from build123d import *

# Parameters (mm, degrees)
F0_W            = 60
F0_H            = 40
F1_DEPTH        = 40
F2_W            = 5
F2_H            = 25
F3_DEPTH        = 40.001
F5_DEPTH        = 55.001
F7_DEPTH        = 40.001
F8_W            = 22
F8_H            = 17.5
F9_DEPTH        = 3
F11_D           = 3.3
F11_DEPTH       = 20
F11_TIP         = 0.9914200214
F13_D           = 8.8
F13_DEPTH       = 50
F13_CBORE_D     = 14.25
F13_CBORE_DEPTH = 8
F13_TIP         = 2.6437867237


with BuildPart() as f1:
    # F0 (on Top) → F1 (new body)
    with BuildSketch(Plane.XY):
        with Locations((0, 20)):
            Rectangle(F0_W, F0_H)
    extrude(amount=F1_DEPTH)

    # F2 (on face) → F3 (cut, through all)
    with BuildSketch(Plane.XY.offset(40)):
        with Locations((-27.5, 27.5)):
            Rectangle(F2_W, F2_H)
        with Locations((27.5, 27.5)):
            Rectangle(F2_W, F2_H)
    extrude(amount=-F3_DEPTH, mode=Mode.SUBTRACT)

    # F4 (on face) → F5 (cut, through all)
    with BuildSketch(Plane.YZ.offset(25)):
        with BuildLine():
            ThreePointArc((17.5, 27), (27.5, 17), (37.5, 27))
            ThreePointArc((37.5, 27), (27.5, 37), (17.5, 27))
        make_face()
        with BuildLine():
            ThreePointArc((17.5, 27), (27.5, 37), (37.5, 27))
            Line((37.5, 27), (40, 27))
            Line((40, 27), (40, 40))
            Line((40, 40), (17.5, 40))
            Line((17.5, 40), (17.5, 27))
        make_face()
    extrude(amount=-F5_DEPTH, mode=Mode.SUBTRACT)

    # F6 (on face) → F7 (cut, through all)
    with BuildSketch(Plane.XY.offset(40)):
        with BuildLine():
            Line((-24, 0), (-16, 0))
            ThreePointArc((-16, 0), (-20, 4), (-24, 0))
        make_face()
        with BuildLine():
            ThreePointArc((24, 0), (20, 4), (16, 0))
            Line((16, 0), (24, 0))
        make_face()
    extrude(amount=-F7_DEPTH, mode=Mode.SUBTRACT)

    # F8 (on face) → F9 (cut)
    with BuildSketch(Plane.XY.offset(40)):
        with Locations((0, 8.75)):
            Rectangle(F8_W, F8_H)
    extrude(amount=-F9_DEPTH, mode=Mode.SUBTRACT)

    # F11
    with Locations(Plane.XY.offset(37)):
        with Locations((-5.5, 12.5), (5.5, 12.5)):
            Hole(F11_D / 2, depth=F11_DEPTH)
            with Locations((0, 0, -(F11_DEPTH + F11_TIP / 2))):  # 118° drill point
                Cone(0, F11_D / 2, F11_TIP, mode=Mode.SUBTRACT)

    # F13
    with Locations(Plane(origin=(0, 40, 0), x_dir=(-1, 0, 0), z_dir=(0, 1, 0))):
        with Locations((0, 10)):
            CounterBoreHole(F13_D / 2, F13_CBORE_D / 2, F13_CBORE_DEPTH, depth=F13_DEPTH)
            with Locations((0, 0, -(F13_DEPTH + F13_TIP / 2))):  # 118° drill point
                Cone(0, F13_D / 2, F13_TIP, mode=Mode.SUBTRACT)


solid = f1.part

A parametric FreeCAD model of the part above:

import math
import FreeCAD as App
import Part
import Sketcher
from FreeCAD import Vector
Q = App.Units.Quantity

doc = App.newDocument("Part")
params = doc.addObject("Spreadsheet::Sheet", "Params")
for row, (alias, value) in enumerate([
    ("sketch1_width", "60 mm"),
    ("sketch1_height", "40 mm"),
    ("pad1_length", "40 mm"),
    ("sketch2_width", "5 mm"),
    ("sketch2_height", "25 mm"),
    ("sketch3_radius", "10 mm"),
    ("sketch3_height", "13 mm"),
    ("sketch3_width", "2.5 mm"),
    ("sketch4_radius", "4 mm"),
    ("sketch5_width", "22 mm"),
    ("sketch5_height", "17.5 mm"),
    ("pocket4_length", "3 mm"),
    ("sketch6_diameter", "3.3 mm"),
    ("hole_diameter", "3.3 mm"),
    ("hole_depth", "20 mm"),
    ("sketch7_diameter", "8.8 mm"),
    ("hole2_diameter", "8.8 mm"),
    ("hole2_depth", "50 mm"),
    ("hole2_cbore_diameter", "14.25 mm"),
    ("hole2_cbore_depth", "8 mm"),
], start=1):
    params.set(f"A{row}", alias)
    params.set(f"B{row}", "=" + value)
    params.setAlias(f"B{row}", alias)

body = doc.addObject("PartDesign::Body", "Body")

sketch1 = body.newObject("Sketcher::SketchObject", "Sketch")
sketch1.AttachmentSupport = (doc.getObject("XY_Plane"), [""])
sketch1.MapMode = "FlatFace"
sketch1.addGeometry([
    Part.LineSegment(Vector(-30, 40, 0), Vector(-30, 0, 0)),
    Part.LineSegment(Vector(-30, 0, 0), Vector(30, 0, 0)),
    Part.LineSegment(Vector(30, 0, 0), Vector(30, 40, 0)),
    Part.LineSegment(Vector(30, 40, 0), Vector(-30, 40, 0)),
], False)
sketch1.addConstraint([
    Sketcher.Constraint("Coincident", 0, 2, 1, 1),
    Sketcher.Constraint("Coincident", 1, 2, 2, 1),
    Sketcher.Constraint("Coincident", 2, 2, 3, 1),
    Sketcher.Constraint("Coincident", 3, 2, 0, 1),
    Sketcher.Constraint("Vertical", 0),
    Sketcher.Constraint("Horizontal", 1),
    Sketcher.Constraint("Vertical", 2),
    Sketcher.Constraint("Horizontal", 3),
    Sketcher.Constraint("Symmetric", 0, 2, 1, 2, -1, 1),
    Sketcher.Constraint("DistanceX", 1, 1, 1, 2, Q("60 mm")),
    Sketcher.Constraint("DistanceY", 0, 2, 0, 1, Q("40 mm")),
])
sketch1.setExpression("Constraints[9]", "Params.sketch1_width")
sketch1.setExpression("Constraints[10]", "Params.sketch1_height")
pad1 = body.newObject("PartDesign::Pad", "Pad")
pad1.Profile = sketch1
pad1.setExpression("Length", "Params.pad1_length")

sketch2 = body.newObject("Sketcher::SketchObject", "Sketch001")
sketch2.AttachmentSupport = (doc.getObject("XY_Plane"), [""])
sketch2.MapMode = "FlatFace"
sketch2.AttachmentOffset = App.Placement(Vector(0, 0, 40), App.Rotation())
sketch2.addGeometry([
    Part.LineSegment(Vector(-30, 40, 0), Vector(-30, 15, 0)),
    Part.LineSegment(Vector(-30, 15, 0), Vector(-25, 15, 0)),
    Part.LineSegment(Vector(-25, 15, 0), Vector(-25, 40, 0)),
    Part.LineSegment(Vector(-25, 40, 0), Vector(-30, 40, 0)),
    Part.LineSegment(Vector(25, 40, 0), Vector(25, 15, 0)),
    Part.LineSegment(Vector(25, 15, 0), Vector(30, 15, 0)),
    Part.LineSegment(Vector(30, 15, 0), Vector(30, 40, 0)),
    Part.LineSegment(Vector(30, 40, 0), Vector(25, 40, 0)),
], False)
sketch2.addConstraint([
    Sketcher.Constraint("Coincident", 0, 2, 1, 1),
    Sketcher.Constraint("Coincident", 1, 2, 2, 1),
    Sketcher.Constraint("Coincident", 2, 2, 3, 1),
    Sketcher.Constraint("Coincident", 3, 2, 0, 1),
    Sketcher.Constraint("Coincident", 4, 2, 5, 1),
    Sketcher.Constraint("Coincident", 5, 2, 6, 1),
    Sketcher.Constraint("Coincident", 6, 2, 7, 1),
    Sketcher.Constraint("Coincident", 7, 2, 4, 1),
    Sketcher.Constraint("Vertical", 0),
    Sketcher.Constraint("Horizontal", 1),
    Sketcher.Constraint("Vertical", 2),
    Sketcher.Constraint("Horizontal", 3),
    Sketcher.Constraint("Vertical", 4),
    Sketcher.Constraint("Horizontal", 5),
    Sketcher.Constraint("Vertical", 6),
    Sketcher.Constraint("Horizontal", 7),
    Sketcher.Constraint("Symmetric", 1, 2, 4, 2, -2),
    Sketcher.Constraint("Symmetric", 3, 2, 6, 2, -2),
    Sketcher.Constraint("DistanceX", 1, 1, 1, 2, Q("5 mm")),
    Sketcher.Constraint("DistanceY", 0, 2, 0, 1, Q("25 mm")),
    Sketcher.Constraint("DistanceX", 0, 2, -1, 1, Q("30 mm")),
    Sketcher.Constraint("DistanceY", -1, 1, 0, 2, Q("15 mm")),
])
sketch2.setExpression("Constraints[18]", "Params.sketch2_width")
sketch2.setExpression("Constraints[19]", "Params.sketch2_height")
pocket1 = body.newObject("PartDesign::Pocket", "Pocket")
pocket1.Profile = sketch2
pocket1.Type = "ThroughAll"

sketch3 = body.newObject("Sketcher::SketchObject", "Sketch002")
sketch3.AttachmentSupport = (doc.getObject("YZ_Plane"), [""])
sketch3.MapMode = "FlatFace"
sketch3.AttachmentOffset = App.Placement(Vector(0, 0, 25), App.Rotation())
sketch3.addGeometry([
    Part.ArcOfCircle(Part.Circle(Vector(27.5, 27, 0), Vector(0, 0, 1), 10), math.radians(180), math.radians(360)),
    Part.LineSegment(Vector(37.5, 27, 0), Vector(40, 27, 0)),
    Part.LineSegment(Vector(40, 27, 0), Vector(40, 40, 0)),
    Part.LineSegment(Vector(40, 40, 0), Vector(17.5, 40, 0)),
    Part.LineSegment(Vector(17.5, 40, 0), Vector(17.5, 27, 0)),
], False)
sketch3.addConstraint([
    Sketcher.Constraint("Coincident", 0, 2, 1, 1),
    Sketcher.Constraint("Coincident", 1, 2, 2, 1),
    Sketcher.Constraint("Coincident", 2, 2, 3, 1),
    Sketcher.Constraint("Coincident", 3, 2, 4, 1),
    Sketcher.Constraint("Tangent", 4, 2, 0, 1),
    Sketcher.Constraint("Horizontal", 1),
    Sketcher.Constraint("Vertical", 2),
    Sketcher.Constraint("Horizontal", 3),
    Sketcher.Constraint("Vertical", 4),
    Sketcher.Constraint("Horizontal", 1, 2, 4, 2),
    Sketcher.Constraint("Radius", 0, Q("10 mm")),
    Sketcher.Constraint("DistanceY", 2, 1, 2, 2, Q("13 mm")),
    Sketcher.Constraint("DistanceX", 1, 1, 1, 2, Q("2.5 mm")),
    Sketcher.Constraint("DistanceY", -1, 1, 0, 3, Q("27 mm")),
    Sketcher.Constraint("DistanceX", -1, 1, 1, 2, Q("40 mm")),
])
sketch3.setExpression("Constraints[10]", "Params.sketch3_radius")
sketch3.setExpression("Constraints[11]", "Params.sketch3_height")
sketch3.setExpression("Constraints[12]", "Params.sketch3_width")
pocket2 = body.newObject("PartDesign::Pocket", "Pocket001")
pocket2.Profile = sketch3
pocket2.Type = "ThroughAll"

sketch4 = body.newObject("Sketcher::SketchObject", "Sketch003")
sketch4.AttachmentSupport = (doc.getObject("XY_Plane"), [""])
sketch4.MapMode = "FlatFace"
sketch4.AttachmentOffset = App.Placement(Vector(0, 0, 40), App.Rotation())
sketch4.addGeometry([
    Part.LineSegment(Vector(-24, 0, 0), Vector(-16, 0, 0)),
    Part.ArcOfCircle(Part.Circle(Vector(-20, 0, 0), Vector(0, 0, 1), 4), math.radians(0), math.radians(180)),
    Part.ArcOfCircle(Part.Circle(Vector(20, 0, 0), Vector(0, 0, 1), 4), math.radians(0), math.radians(180)),
    Part.LineSegment(Vector(16, 0, 0), Vector(24, 0, 0)),
], False)
sketch4.addConstraint([
    Sketcher.Constraint("Coincident", 0, 1, 1, 2),
    Sketcher.Constraint("Coincident", 1, 1, 0, 2),
    Sketcher.Constraint("Coincident", 2, 1, 3, 2),
    Sketcher.Constraint("Coincident", 3, 1, 2, 2),
    Sketcher.Constraint("Horizontal", 0),
    Sketcher.Constraint("Horizontal", 3),
    Sketcher.Constraint("Equal", 1, 2),
    Sketcher.Constraint("Symmetric", 1, 3, 2, 3, -1, 1),
    Sketcher.Constraint("PointOnObject", 1, 3, -1),
    Sketcher.Constraint("PointOnObject", 0, 1, -1),
    Sketcher.Constraint("PointOnObject", 2, 1, -1),
    Sketcher.Constraint("Radius", 1, Q("4 mm")),
    Sketcher.Constraint("DistanceX", 1, 3, -1, 1, Q("20 mm")),
])
sketch4.setExpression("Constraints[11]", "Params.sketch4_radius")
pocket3 = body.newObject("PartDesign::Pocket", "Pocket002")
pocket3.Profile = sketch4
pocket3.Type = "ThroughAll"

sketch5 = body.newObject("Sketcher::SketchObject", "Sketch004")
sketch5.AttachmentSupport = (doc.getObject("XY_Plane"), [""])
sketch5.MapMode = "FlatFace"
sketch5.AttachmentOffset = App.Placement(Vector(0, 0, 40), App.Rotation())
sketch5.addGeometry([
    Part.LineSegment(Vector(-11, 18, 0), Vector(-11, 0, 0)),
    Part.LineSegment(Vector(-11, 0, 0), Vector(11, 0, 0)),
    Part.LineSegment(Vector(11, 0, 0), Vector(11, 18, 0)),
    Part.LineSegment(Vector(11, 18, 0), Vector(-11, 18, 0)),
], False)
sketch5.addConstraint([
    Sketcher.Constraint("Coincident", 0, 2, 1, 1),
    Sketcher.Constraint("Coincident", 1, 2, 2, 1),
    Sketcher.Constraint("Coincident", 2, 2, 3, 1),
    Sketcher.Constraint("Coincident", 3, 2, 0, 1),
    Sketcher.Constraint("Vertical", 0),
    Sketcher.Constraint("Horizontal", 1),
    Sketcher.Constraint("Vertical", 2),
    Sketcher.Constraint("Horizontal", 3),
    Sketcher.Constraint("Symmetric", 0, 2, 1, 2, -1, 1),
    Sketcher.Constraint("DistanceX", 1, 1, 1, 2, Q("22 mm")),
    Sketcher.Constraint("DistanceY", 0, 2, 0, 1, Q("17.5 mm")),
])
sketch5.setExpression("Constraints[9]", "Params.sketch5_width")
sketch5.setExpression("Constraints[10]", "Params.sketch5_height")
pocket4 = body.newObject("PartDesign::Pocket", "Pocket003")
pocket4.Profile = sketch5
pocket4.setExpression("Length", "Params.pocket4_length")

sketch6 = body.newObject("Sketcher::SketchObject", "Sketch005")
sketch6.AttachmentSupport = (doc.getObject("XY_Plane"), [""])
sketch6.MapMode = "FlatFace"
sketch6.AttachmentOffset = App.Placement(Vector(0, 0, 37), App.Rotation())
sketch6.addGeometry([
    Part.Circle(Vector(-5.5, 12.5, 0), Vector(0, 0, 1), 1.6),
    Part.Circle(Vector(5.5, 12.5, 0), Vector(0, 0, 1), 1.6),
], False)
sketch6.addConstraint([
    Sketcher.Constraint("Equal", 0, 1),
    Sketcher.Constraint("Symmetric", 0, 3, 1, 3, -2),
    Sketcher.Constraint("Diameter", 0, Q("3.3 mm")),
    Sketcher.Constraint("DistanceX", 0, 3, 1, 3, Q("11 mm")),
    Sketcher.Constraint("DistanceY", -1, 1, 0, 3, Q("12.5 mm")),
])
sketch6.setExpression("Constraints[2]", "Params.sketch6_diameter")
doc.recompute()
hole = body.newObject("PartDesign::Hole", "Hole")
hole.Profile = sketch6
hole.ThreadType = "None"
hole.setExpression("Diameter", "Params.hole_diameter")
hole.DepthType = "Dimension"
hole.setExpression("Depth", "Params.hole_depth")
hole.DrillPoint = "Angled"
hole.DrillPointAngle = 118

sketch7 = body.newObject("Sketcher::SketchObject", "Sketch006")
sketch7.AttachmentSupport = (doc.getObject("XZ_Plane"), [""])
sketch7.MapMode = "FlatFace"
sketch7.AttachmentOffset = App.Placement(Vector(0, 0, -40), App.Rotation())
sketch7.addGeometry(Part.Circle(Vector(0, 10, 0), Vector(0, 0, 1), 4.4), False)
sketch7.addConstraint([
    Sketcher.Constraint("PointOnObject", 0, 3, -2),
    Sketcher.Constraint("Diameter", 0, Q("8.8 mm")),
    Sketcher.Constraint("DistanceY", -1, 1, 0, 3, Q("10 mm")),
])
sketch7.setExpression("Constraints[1]", "Params.sketch7_diameter")
doc.recompute()
hole2 = body.newObject("PartDesign::Hole", "Hole001")
hole2.Profile = sketch7
hole2.ThreadType = "None"
hole2.setExpression("Diameter", "Params.hole2_diameter")
hole2.DepthType = "Dimension"
hole2.setExpression("Depth", "Params.hole2_depth")
hole2.DrillPoint = "Angled"
hole2.DrillPointAngle = 118
hole2.HoleCutType = "Counterbore"
hole2.setExpression("HoleCutDiameter", "Params.hole2_cbore_diameter")
hole2.setExpression("HoleCutDepth", "Params.hole2_cbore_depth")
hole2.Reversed = True

doc.recompute()
